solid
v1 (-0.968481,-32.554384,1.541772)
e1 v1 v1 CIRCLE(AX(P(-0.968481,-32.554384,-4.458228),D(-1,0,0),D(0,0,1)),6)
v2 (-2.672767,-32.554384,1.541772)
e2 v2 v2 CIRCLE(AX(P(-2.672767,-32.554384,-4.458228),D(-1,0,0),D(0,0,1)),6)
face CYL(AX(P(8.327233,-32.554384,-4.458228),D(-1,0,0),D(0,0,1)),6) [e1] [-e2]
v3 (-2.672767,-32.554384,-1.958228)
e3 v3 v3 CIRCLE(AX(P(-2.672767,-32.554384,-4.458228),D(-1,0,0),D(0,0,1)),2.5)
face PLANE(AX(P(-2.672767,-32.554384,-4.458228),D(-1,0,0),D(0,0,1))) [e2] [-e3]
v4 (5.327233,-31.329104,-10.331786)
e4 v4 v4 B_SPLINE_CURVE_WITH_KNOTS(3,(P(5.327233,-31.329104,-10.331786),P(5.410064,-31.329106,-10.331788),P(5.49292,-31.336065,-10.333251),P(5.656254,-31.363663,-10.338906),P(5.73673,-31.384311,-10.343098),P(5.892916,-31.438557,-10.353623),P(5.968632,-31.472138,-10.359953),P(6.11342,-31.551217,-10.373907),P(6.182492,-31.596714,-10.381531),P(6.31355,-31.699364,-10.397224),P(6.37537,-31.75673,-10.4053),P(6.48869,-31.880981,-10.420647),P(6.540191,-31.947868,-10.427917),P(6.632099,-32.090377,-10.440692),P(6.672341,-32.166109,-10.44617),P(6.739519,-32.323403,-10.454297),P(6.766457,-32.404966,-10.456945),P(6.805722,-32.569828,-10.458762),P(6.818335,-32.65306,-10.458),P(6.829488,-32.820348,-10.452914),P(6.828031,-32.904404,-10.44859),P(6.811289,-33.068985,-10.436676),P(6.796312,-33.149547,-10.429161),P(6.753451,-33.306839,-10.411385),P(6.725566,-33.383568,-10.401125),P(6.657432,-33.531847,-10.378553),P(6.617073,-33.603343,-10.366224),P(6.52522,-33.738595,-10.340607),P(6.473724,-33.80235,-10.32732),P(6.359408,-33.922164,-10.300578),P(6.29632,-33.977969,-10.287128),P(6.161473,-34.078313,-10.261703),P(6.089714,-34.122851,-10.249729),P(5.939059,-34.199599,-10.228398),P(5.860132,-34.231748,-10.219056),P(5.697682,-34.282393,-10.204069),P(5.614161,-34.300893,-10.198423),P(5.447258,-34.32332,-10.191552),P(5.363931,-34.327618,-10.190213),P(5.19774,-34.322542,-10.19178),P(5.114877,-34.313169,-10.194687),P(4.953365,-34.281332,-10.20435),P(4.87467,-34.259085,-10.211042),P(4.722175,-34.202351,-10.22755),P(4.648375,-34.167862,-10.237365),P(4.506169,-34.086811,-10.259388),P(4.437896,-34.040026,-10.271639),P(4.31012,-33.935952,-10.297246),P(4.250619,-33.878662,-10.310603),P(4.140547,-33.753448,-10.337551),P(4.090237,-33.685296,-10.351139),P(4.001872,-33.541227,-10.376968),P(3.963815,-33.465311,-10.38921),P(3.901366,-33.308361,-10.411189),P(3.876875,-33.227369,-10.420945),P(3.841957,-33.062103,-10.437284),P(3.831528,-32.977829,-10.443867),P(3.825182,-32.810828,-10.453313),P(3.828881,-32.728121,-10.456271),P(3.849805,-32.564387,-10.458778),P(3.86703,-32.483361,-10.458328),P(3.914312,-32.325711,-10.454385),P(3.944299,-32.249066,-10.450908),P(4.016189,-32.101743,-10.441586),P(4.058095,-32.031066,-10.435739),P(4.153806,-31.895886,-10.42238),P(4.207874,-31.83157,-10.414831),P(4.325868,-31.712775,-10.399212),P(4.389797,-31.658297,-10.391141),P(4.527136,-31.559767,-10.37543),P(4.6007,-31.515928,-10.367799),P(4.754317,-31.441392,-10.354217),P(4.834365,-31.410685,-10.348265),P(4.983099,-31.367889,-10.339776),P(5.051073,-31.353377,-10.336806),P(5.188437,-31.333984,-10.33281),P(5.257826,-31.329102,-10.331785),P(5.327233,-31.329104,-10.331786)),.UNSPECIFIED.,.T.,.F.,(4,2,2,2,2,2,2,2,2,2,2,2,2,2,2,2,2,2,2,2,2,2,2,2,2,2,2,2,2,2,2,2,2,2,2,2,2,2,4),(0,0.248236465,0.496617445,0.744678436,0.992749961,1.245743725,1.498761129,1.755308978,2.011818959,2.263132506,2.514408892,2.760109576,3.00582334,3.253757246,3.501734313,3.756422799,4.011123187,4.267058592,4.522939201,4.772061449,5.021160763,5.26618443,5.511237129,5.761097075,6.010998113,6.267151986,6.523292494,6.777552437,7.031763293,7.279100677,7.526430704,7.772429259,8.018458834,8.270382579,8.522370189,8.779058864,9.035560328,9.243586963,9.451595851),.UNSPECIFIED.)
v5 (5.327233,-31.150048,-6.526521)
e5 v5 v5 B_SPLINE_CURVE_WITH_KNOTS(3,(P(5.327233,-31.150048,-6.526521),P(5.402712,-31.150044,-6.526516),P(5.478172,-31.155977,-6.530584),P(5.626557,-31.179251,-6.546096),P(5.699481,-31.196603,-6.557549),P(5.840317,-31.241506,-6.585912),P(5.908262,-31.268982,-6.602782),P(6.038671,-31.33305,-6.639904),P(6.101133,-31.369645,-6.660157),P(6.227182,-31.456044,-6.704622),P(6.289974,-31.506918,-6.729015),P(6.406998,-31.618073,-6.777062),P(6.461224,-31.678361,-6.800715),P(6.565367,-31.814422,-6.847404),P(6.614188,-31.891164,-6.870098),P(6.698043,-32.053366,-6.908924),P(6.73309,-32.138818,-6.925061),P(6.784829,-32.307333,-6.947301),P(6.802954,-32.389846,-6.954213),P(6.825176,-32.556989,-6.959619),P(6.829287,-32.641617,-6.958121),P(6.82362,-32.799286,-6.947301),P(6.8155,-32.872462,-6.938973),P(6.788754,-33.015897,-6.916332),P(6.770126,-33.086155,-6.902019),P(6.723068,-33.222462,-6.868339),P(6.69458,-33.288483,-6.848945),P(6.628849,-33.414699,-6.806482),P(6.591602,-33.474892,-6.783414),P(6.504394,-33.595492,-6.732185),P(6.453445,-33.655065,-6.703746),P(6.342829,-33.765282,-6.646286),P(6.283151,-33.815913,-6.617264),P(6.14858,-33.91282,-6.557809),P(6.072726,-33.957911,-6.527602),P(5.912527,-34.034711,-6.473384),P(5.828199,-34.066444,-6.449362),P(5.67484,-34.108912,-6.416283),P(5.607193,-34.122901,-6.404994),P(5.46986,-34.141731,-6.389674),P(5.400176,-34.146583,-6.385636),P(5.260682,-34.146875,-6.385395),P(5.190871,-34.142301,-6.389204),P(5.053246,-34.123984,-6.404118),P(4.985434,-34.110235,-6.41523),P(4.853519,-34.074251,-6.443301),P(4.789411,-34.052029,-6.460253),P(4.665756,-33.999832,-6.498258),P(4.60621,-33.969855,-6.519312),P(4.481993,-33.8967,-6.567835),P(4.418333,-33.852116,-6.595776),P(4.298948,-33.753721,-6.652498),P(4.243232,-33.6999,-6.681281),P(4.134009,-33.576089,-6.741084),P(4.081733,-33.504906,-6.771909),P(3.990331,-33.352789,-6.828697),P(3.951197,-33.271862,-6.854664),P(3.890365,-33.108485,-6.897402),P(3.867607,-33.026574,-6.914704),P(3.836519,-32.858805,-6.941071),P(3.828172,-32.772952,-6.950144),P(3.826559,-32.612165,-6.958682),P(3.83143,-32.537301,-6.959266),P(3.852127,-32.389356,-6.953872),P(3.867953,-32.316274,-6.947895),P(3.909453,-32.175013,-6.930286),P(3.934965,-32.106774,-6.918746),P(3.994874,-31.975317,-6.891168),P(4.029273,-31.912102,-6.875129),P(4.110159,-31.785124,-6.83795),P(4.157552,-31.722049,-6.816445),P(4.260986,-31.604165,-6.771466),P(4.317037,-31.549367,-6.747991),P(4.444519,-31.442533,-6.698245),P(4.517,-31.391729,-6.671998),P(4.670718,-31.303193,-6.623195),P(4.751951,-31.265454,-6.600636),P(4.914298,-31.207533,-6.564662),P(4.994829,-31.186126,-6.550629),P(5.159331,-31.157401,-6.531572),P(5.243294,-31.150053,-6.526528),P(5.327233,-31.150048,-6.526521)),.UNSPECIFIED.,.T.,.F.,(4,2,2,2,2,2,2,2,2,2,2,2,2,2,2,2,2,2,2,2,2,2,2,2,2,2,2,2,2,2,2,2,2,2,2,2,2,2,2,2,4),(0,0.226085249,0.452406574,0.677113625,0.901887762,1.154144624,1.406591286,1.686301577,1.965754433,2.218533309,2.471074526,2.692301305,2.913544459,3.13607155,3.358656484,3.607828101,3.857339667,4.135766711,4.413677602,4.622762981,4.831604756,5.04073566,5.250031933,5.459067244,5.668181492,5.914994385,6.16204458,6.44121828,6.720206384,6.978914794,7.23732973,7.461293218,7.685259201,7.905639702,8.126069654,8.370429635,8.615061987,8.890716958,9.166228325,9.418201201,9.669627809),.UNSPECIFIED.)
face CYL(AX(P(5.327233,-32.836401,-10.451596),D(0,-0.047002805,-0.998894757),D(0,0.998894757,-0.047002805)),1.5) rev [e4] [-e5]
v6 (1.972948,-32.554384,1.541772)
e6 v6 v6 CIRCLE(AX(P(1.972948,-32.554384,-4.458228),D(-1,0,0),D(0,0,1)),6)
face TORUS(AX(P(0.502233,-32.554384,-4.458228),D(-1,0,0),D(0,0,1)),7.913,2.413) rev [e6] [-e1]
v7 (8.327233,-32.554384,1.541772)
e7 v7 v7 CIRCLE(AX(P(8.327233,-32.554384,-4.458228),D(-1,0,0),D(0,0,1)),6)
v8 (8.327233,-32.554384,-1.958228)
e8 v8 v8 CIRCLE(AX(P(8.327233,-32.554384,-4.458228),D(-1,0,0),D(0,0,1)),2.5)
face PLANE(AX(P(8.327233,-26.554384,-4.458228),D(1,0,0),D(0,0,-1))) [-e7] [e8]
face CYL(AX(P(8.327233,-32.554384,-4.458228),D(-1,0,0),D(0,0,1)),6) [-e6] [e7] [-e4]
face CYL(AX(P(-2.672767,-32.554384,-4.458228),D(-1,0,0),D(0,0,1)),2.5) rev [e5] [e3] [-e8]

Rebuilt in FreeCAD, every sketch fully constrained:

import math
import FreeCAD as App
import Part
import Sketcher
from FreeCAD import Vector
Q = App.Units.Quantity

doc = App.newDocument("Part")
body = doc.addObject("PartDesign::Body", "Body")

# Sketch on XY plane
sketch1 = body.newObject("Sketcher::SketchObject", "Sketch")
sketch1.AttachmentSupport = (doc.getObject("XY_Plane"), [""])
sketch1.MapMode = "FlatFace"
sketch1.AttachmentOffset = App.Placement(Vector(0, 0, -4.458228), App.Rotation())
sketch1.addGeometry(Part.LineSegment(Vector(8.3, -26.6, 0), Vector(8.3, -32.6, 0)), False)
sketch1.addGeometry(Part.LineSegment(Vector(8.3, -32.6, 0), Vector(-2.7, -32.6, 0)), False)
sketch1.addGeometry(Part.LineSegment(Vector(-2.7, -32.6, 0), Vector(-2.7, -26.6, 0)), False)
sketch1.addGeometry(Part.LineSegment(Vector(-2.7, -26.6, 0), Vector(-1, -26.6, 0)), False)
sketch1.addGeometry(Part.ArcOfCircle(Part.Circle(Vector(0.5, -24.6, 0), Vector(0, 0, 1), 2.4), math.radians(-128), math.radians(-52)), False)
sketch1.addGeometry(Part.LineSegment(Vector(2, -26.6, 0), Vector(8.3, -26.6, 0)), False)
sketch1.addGeometry(Part.LineSegment(Vector(8.3, -32.6, 0), Vector(-2.7, -32.6, 0)), True)  # axis
sketch1.addConstraint(Sketcher.Constraint("Coincident", 0, 2, 1, 1))
sketch1.addConstraint(Sketcher.Constraint("Coincident", 1, 2, 2, 1))
sketch1.addConstraint(Sketcher.Constraint("Coincident", 2, 2, 3, 1))
sketch1.addConstraint(Sketcher.Constraint("Coincident", 3, 2, 4, 1))
sketch1.addConstraint(Sketcher.Constraint("Coincident", 4, 2, 5, 1))
sketch1.addConstraint(Sketcher.Constraint("Coincident", 5, 2, 0, 1))
sketch1.addConstraint(Sketcher.Constraint("Vertical", 0))
sketch1.addConstraint(Sketcher.Constraint("Horizontal", 1))
sketch1.addConstraint(Sketcher.Constraint("Vertical", 2))
sketch1.addConstraint(Sketcher.Constraint("Horizontal", 3))
sketch1.addConstraint(Sketcher.Constraint("Horizontal", 5))
sketch1.addConstraint(Sketcher.Constraint("Horizontal", 6))
sketch1.addConstraint(Sketcher.Constraint("Coincident", 6, 1, 0, 2))
sketch1.addConstraint(Sketcher.Constraint("Horizontal", 3, 2, 4, 2))
sketch1.addConstraint(Sketcher.Constraint("Vertical", 2, 2, 6, 2))
sketch1.addConstraint(Sketcher.Constraint("DistanceX", 1, 2, 1, 1, Q("11 mm")))
sketch1.addConstraint(Sketcher.Constraint("DistanceY", 0, 2, 0, 1, Q("6 mm")))
sketch1.addConstraint(Sketcher.Constraint("Radius", 4, Q("2.413 mm")))
sketch1.addConstraint(Sketcher.Constraint("DistanceX", 4, 3, 0, 2, Q("7.825 mm")))
sketch1.addConstraint(Sketcher.Constraint("DistanceY", 0, 2, 4, 3, Q("7.913 mm")))
sketch1.addConstraint(Sketcher.Constraint("DistanceX", 3, 2, -1, 1, Q("0.968481 mm")))
sketch1.addConstraint(Sketcher.Constraint("DistanceY", 4, 3, -1, 1, Q("24.641384 mm")))
revolution = body.newObject("PartDesign::Revolution", "Revolution")
revolution.Profile = sketch1
revolution.ReferenceAxis = (sketch1, ["Axis0"])
revolution.Angle = 360

# Sketch on YZ plane
sketch2 = body.newObject("Sketcher::SketchObject", "Sketch001")
sketch2.AttachmentSupport = (doc.getObject("YZ_Plane"), [""])
sketch2.MapMode = "FlatFace"
sketch2.AttachmentOffset = App.Placement(Vector(0, 0, -2.672767), App.Rotation())
sketch2.addGeometry(Part.Circle(Vector(-32.6, -4.5, 0), Vector(0, 0, 1), 2.5), False)
sketch2.addConstraint(Sketcher.Constraint("Diameter", 0, Q("5 mm")))
sketch2.addConstraint(Sketcher.Constraint("DistanceX", 0, 3, -1, 1, Q("32.554384 mm")))
sketch2.addConstraint(Sketcher.Constraint("DistanceY", 0, 3, -1, 1, Q("4.458228 mm")))
doc.recompute()
hole = body.newObject("PartDesign::Hole", "Hole")
hole.Profile = sketch2
hole.ThreadType = "None"
hole.Diameter = 5
hole.DepthType = "ThroughAll"
hole.Reversed = True

# Sketch on an angled plane
sketch3 = body.newObject("Sketcher::SketchObject", "Sketch002")
sketch3.Placement = App.Placement(Vector(5.327233, -32.836401, -10.451596), App.Rotation(Vector(0, -0.998894757, 0.047002805), Vector(-0.999999999, 0, 0), Vector(0, -0.047002805, -0.998894757), "ZXY"))
sketch3.addGeometry(Part.Circle(Vector(0, 0, 0), Vector(0, 0, 1), 1.5), False)
sketch3.addConstraint(Sketcher.Constraint("Coincident", 0, 3, -1, 1))
sketch3.addConstraint(Sketcher.Constraint("Diameter", 0, Q("3 mm")))
pocket1 = body.newObject("PartDesign::Pocket", "Pocket")
pocket1.Profile = sketch3
pocket1.Type = "UpToFirst"

doc.recompute()
